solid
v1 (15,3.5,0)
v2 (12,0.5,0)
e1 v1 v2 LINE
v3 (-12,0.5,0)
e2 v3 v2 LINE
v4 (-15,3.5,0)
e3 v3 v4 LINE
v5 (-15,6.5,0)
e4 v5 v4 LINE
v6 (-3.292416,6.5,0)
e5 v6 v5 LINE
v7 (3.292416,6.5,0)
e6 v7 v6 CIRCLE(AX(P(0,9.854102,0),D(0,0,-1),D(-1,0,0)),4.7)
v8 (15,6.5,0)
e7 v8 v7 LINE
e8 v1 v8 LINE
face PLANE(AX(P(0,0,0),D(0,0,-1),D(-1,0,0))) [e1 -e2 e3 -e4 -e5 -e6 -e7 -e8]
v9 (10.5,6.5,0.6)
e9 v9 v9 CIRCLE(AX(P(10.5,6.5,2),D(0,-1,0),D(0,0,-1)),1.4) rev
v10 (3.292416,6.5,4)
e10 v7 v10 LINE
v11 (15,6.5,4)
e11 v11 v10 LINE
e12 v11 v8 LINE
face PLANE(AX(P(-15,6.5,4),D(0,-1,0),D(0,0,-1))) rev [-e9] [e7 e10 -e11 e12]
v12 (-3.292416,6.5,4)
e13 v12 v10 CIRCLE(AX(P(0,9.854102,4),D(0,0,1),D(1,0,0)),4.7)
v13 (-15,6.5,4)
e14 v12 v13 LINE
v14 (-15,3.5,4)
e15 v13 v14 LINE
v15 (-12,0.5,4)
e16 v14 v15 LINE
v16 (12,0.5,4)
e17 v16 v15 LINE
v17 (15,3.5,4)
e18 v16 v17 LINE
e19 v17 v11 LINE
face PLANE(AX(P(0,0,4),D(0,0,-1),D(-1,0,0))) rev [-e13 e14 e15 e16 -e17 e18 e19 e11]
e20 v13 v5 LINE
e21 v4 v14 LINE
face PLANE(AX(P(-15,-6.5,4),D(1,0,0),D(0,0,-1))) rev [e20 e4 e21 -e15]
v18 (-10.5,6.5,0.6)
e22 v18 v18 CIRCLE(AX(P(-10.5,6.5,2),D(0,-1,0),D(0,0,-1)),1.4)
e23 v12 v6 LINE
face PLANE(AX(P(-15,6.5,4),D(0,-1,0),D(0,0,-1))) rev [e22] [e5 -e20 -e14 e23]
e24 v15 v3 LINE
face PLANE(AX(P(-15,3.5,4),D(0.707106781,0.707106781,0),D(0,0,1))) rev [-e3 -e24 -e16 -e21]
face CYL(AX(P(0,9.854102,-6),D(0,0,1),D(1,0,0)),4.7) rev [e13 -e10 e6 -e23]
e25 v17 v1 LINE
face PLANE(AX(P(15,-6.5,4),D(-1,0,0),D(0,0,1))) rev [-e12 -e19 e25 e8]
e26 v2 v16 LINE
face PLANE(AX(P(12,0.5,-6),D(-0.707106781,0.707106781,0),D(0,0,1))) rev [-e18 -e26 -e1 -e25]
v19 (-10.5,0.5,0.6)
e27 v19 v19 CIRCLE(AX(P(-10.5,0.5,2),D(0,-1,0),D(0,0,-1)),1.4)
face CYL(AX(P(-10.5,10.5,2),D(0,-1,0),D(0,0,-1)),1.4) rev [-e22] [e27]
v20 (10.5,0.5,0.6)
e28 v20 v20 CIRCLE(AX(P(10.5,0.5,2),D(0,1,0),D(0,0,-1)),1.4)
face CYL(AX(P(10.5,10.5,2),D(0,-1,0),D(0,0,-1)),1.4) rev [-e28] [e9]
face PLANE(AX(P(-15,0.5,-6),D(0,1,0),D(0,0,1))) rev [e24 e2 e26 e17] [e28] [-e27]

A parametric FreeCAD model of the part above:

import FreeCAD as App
import Part
import Sketcher
Q = App.Units.Quantity


def edges_at(feature, points):
    """Names of the edges that pass closest to the given points."""
    edges = feature.Shape.Edges
    near = lambda p: min(range(len(edges)), key=lambda i: edges[i].distToShape(Part.Vertex(*p))[0])
    return sorted({f"Edge{near(p) + 1}" for p in points})

doc = App.newDocument("Part")
body = doc.addObject("PartDesign::Body", "Body")

# Sketch on XY plane
sketch1 = body.newObject("Sketcher::SketchObject", "Sketch")
sketch1.AttachmentSupport = (doc.getObject("XY_Plane"), [""])
sketch1.MapMode = "FlatFace"
sketch1.addGeometry([
    Part.LineSegment(App.Vector(-15, 6, 0), App.Vector(-15, -6, 0)),
    Part.LineSegment(App.Vector(-15, -6, 0), App.Vector(15, -6, 0)),
    Part.LineSegment(App.Vector(15, -6, 0), App.Vector(15, 6, 0)),
    Part.LineSegment(App.Vector(15, 6, 0), App.Vector(-15, 6, 0)),
], False)
sketch1.addConstraint([
    Sketcher.Constraint("Coincident", 0, 2, 1, 1),
    Sketcher.Constraint("Coincident", 1, 2, 2, 1),
    Sketcher.Constraint("Coincident", 2, 2, 3, 1),
    Sketcher.Constraint("Coincident", 3, 2, 0, 1),
    Sketcher.Constraint("Vertical", 0),
    Sketcher.Constraint("Horizontal", 1),
    Sketcher.Constraint("Vertical", 2),
    Sketcher.Constraint("Horizontal", 3),
    Sketcher.Constraint("Symmetric", 0, 2, 2, 2, -1, 1),
    Sketcher.Constraint("DistanceX", 1, 1, 1, 2, Q("30 mm")),
    Sketcher.Constraint("DistanceY", 0, 2, 0, 1, Q("13 mm")),
])
pad1 = body.newObject("PartDesign::Pad", "Pad")
pad1.Profile = sketch1
pad1.Length = 4

# Sketch on XY plane
sketch2 = body.newObject("Sketcher::SketchObject", "Sketch001")
sketch2.AttachmentSupport = (doc.getObject("XY_Plane"), [""])
sketch2.MapMode = "FlatFace"
sketch2.AttachmentOffset = App.Placement(App.Vector(0, 0, 4), App.Rotation())
sketch2.addGeometry(Part.Circle(App.Vector(0, 9.9, 0), App.Vector(0, 0, 1), 4.7), False)
sketch2.addConstraint([
    Sketcher.Constraint("PointOnObject", 0, 3, -2),
    Sketcher.Constraint("Diameter", 0, Q("9.4 mm")),
    Sketcher.Constraint("DistanceY", -1, 1, 0, 3, Q("9.854102 mm")),
])
pocket1 = body.newObject("PartDesign::Pocket", "Pocket")
pocket1.Profile = sketch2
pocket1.Length = 10

# Sketch on XY plane
sketch3 = body.newObject("Sketcher::SketchObject", "Sketch002")
sketch3.AttachmentSupport = (doc.getObject("XY_Plane"), [""])
sketch3.MapMode = "FlatFace"
sketch3.AttachmentOffset = App.Placement(App.Vector(0, 0, 4), App.Rotation())
sketch3.addGeometry(Part.Circle(App.Vector(0, -0.6, 0), App.Vector(0, 0, 1), 0.8), False)
sketch3.addConstraint([
    Sketcher.Constraint("PointOnObject", 0, 3, -2),
    Sketcher.Constraint("Diameter", 0, Q("1.6 mm")),
    Sketcher.Constraint("DistanceY", 0, 3, -1, 1, Q("0.645898 mm")),
])
doc.recompute()
hole = body.newObject("PartDesign::Hole", "Hole")
hole.Profile = sketch3
hole.ThreadType = "None"
hole.Diameter = 1.6
hole.DepthType = "Dimension"
hole.Depth = 6
hole.DrillPoint = "Angled"
hole.DrillPointAngle = 118

# Sketch on XY plane
sketch4 = body.newObject("Sketcher::SketchObject", "Sketch003")
sketch4.AttachmentSupport = (doc.getObject("XY_Plane"), [""])
sketch4.MapMode = "FlatFace"
sketch4.AttachmentOffset = App.Placement(App.Vector(0, 0, 4), App.Rotation())
sketch4.addGeometry([
    Part.LineSegment(App.Vector(-15, 0, 0), App.Vector(-15, -6, 0)),
    Part.LineSegment(App.Vector(-15, -6, 0), App.Vector(15, -6, 0)),
    Part.LineSegment(App.Vector(15, -6, 0), App.Vector(15, 0, 0)),
    Part.LineSegment(App.Vector(15, 0, 0), App.Vector(-15, 0, 0)),
], False)
sketch4.addConstraint([
    Sketcher.Constraint("Coincident", 0, 2, 1, 1),
    Sketcher.Constraint("Coincident", 1, 2, 2, 1),
    Sketcher.Constraint("Coincident", 2, 2, 3, 1),
    Sketcher.Constraint("Coincident", 3, 2, 0, 1),
    Sketcher.Constraint("Vertical", 0),
    Sketcher.Constraint("Horizontal", 1),
    Sketcher.Constraint("Vertical", 2),
    Sketcher.Constraint("Horizontal", 3),
    Sketcher.Constraint("DistanceX", 1, 1, 1, 2, Q("30 mm")),
    Sketcher.Constraint("DistanceY", 0, 2, 0, 1, Q("7 mm")),
    Sketcher.Constraint("DistanceX", 0, 2, -1, 1, Q("15 mm")),
    Sketcher.Constraint("DistanceY", 0, 2, -1, 1, Q("6.5 mm")),
])
pocket2 = body.newObject("PartDesign::Pocket", "Pocket001")
pocket2.Profile = sketch4
pocket2.Length = 10
doc.recompute()

chamfer = body.newObject("PartDesign::Chamfer", "Chamfer")
chamfer.Base = (pocket2, edges_at(pocket2, [(-15, 0.5, 2), (15, 0.5, 2)]))
chamfer.Size = 3

# Sketch on XZ plane
sketch5 = body.newObject("Sketcher::SketchObject", "Sketch004")
sketch5.AttachmentSupport = (doc.getObject("XZ_Plane"), [""])
sketch5.MapMode = "FlatFace"
sketch5.AttachmentOffset = App.Placement(App.Vector(0, 0, -0.5), App.Rotation())
sketch5.addGeometry(Part.Circle(App.Vector(-10.5, 2, 0), App.Vector(0, 0, 1), 1.4), False)
sketch5.addConstraint([
    Sketcher.Constraint("Diameter", 0, Q("2.8 mm")),
    Sketcher.Constraint("DistanceY", -1, 1, 0, 3, Q("2 mm")),
    Sketcher.Constraint("DistanceX", 0, 3, -1, 1, Q("10.5 mm")),
])
pocket3 = body.newObject("PartDesign::Pocket", "Pocket002")
pocket3.Profile = sketch5
pocket3.Length = 10
doc.recompute()

mirrored = body.newObject("PartDesign::Mirrored", "Mirrored")
mirrored.Originals = [pocket3]
mirrored.MirrorPlane = (doc.getObject("YZ_Plane"), [""])
body.Tip = mirrored

doc.recompute()
